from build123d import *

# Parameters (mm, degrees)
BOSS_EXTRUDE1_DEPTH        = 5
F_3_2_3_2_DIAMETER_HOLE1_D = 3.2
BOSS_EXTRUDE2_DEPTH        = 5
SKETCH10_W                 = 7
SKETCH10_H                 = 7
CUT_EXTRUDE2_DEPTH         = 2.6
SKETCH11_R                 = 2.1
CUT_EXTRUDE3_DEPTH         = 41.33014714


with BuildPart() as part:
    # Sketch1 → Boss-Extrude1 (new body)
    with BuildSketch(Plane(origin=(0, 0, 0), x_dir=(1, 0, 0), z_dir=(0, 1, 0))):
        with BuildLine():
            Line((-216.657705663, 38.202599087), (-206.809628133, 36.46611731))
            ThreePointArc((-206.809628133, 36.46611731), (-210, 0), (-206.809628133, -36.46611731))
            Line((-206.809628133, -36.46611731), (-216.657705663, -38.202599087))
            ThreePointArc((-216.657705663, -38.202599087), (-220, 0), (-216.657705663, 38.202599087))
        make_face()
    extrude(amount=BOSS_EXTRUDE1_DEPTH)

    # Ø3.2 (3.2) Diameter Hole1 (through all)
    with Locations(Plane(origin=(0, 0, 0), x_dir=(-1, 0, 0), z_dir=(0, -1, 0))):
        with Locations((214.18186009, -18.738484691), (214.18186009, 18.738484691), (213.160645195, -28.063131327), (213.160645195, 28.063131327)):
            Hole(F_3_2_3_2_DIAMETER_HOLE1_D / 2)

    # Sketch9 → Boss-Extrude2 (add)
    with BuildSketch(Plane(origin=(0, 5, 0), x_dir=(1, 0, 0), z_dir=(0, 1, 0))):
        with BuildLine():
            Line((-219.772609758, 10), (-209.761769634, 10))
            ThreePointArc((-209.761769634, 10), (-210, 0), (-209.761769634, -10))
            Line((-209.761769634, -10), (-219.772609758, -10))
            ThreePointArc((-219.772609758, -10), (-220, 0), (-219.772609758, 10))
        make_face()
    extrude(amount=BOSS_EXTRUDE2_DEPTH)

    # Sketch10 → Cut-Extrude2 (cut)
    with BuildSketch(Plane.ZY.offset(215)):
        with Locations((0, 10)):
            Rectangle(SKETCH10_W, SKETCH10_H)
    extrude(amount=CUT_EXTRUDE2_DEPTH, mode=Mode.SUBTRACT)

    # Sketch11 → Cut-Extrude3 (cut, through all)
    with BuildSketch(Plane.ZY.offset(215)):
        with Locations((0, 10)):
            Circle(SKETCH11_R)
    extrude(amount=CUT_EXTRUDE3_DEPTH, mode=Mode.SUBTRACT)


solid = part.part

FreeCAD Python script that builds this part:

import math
import FreeCAD as App
import Part
import Sketcher
from FreeCAD import Vector
Q = App.Units.Quantity


def add_polygon(sketch, points):
    """Adds a closed chain of lines whose ends are joined by coincident constraints."""
    first, n = sketch.GeometryCount, len(points)
    for a, b in zip(points, points[1:] + points[:1]):
        sketch.addGeometry(Part.LineSegment(App.Vector(*a, 0), App.Vector(*b, 0)), False)
    for i in range(n):
        sketch.addConstraint(Sketcher.Constraint("Coincident", first + i, 2, first + (i + 1) % n, 1))

doc = App.newDocument("Part")
body = doc.addObject("PartDesign::Body", "Body")

sketch1 = body.newObject("Sketcher::SketchObject", "Sketch")
sketch1.AttachmentSupport = (doc.getObject("XZ_Plane"), [""])
sketch1.MapMode = "FlatFace"
sketch1.addGeometry([
    Part.LineSegment(Vector(-206.809628, -36.466117, 0), Vector(-216.657706, -38.202599, 0)),
    Part.ArcOfCircle(Part.Circle(Vector(0, 0, 0), Vector(0, 0, 1), 220), math.radians(170), math.radians(190)),
    Part.LineSegment(Vector(-216.657706, 38.202599, 0), Vector(-206.809628, 36.466117, 0)),
    Part.ArcOfCircle(Part.Circle(Vector(0, 0, 0), Vector(0, 0, 1), 210), math.radians(170), math.radians(190)),
], False)
sketch1.addConstraint([
    Sketcher.Constraint("Coincident", 0, 2, 1, 2),
    Sketcher.Constraint("Coincident", 1, 1, 2, 1),
    Sketcher.Constraint("Coincident", 2, 2, 3, 1),
    Sketcher.Constraint("Coincident", 3, 2, 0, 1),
    Sketcher.Constraint("Coincident", 1, 3, -1, 1),
    Sketcher.Constraint("Coincident", 3, 3, -1, 1),
    Sketcher.Constraint("Vertical", 0, 2, 1, 1),
    Sketcher.Constraint("Vertical", 2, 2, 3, 2),
    Sketcher.Constraint("Radius", 1, Q("220 mm")),
    Sketcher.Constraint("Radius", 3, Q("210 mm")),
    Sketcher.Constraint("Angle", 0, Q("-170 deg")),
    Sketcher.Constraint("DistanceY", 0, 2, -1, 1, Q("38.202599 mm")),
])
pad1 = body.newObject("PartDesign::Pad", "Pad")
pad1.Profile = sketch1
pad1.Length = 5
pad1.Reversed = True

sketch2 = body.newObject("Sketcher::SketchObject", "Sketch001")
sketch2.AttachmentSupport = (doc.getObject("XZ_Plane"), [""])
sketch2.MapMode = "FlatFace"
sketch2.addGeometry([
    Part.Circle(Vector(-214.18186, 18.738485, 0), Vector(0, 0, 1), 1.6),
    Part.Circle(Vector(-214.18186, -18.738485, 0), Vector(0, 0, 1), 1.6),
    Part.Circle(Vector(-213.160645, 28.063131, 0), Vector(0, 0, 1), 1.6),
    Part.Circle(Vector(-213.160645, -28.063131, 0), Vector(0, 0, 1), 1.6),
], False)
sketch2.addConstraint([
    Sketcher.Constraint("Equal", 0, 1),
    Sketcher.Constraint("Equal", 1, 2),
    Sketcher.Constraint("Equal", 2, 3),
    Sketcher.Constraint("Symmetric", 0, 3, 1, 3, -1),
    Sketcher.Constraint("Symmetric", 2, 3, 3, 3, -1),
    Sketcher.Constraint("Diameter", 0, Q("3.2 mm")),
    Sketcher.Constraint("DistanceX", 0, 3, -1, 1, Q("214.18186 mm")),
    Sketcher.Constraint("DistanceY", -1, 1, 2, 3, Q("28.063131 mm")),
    Sketcher.Constraint("DistanceY", 1, 3, 0, 3, Q("37.476969 mm")),
    Sketcher.Constraint("DistanceX", 2, 3, -1, 1, Q("213.160645 mm")),
])
doc.recompute()
hole = body.newObject("PartDesign::Hole", "Hole")
hole.Profile = sketch2
hole.ThreadType = "None"
hole.Diameter = 3.2
hole.DepthType = "ThroughAll"

sketch3 = body.newObject("Sketcher::SketchObject", "Sketch002")
sketch3.AttachmentSupport = (doc.getObject("XZ_Plane"), [""])
sketch3.MapMode = "FlatFace"
sketch3.AttachmentOffset = App.Placement(Vector(0, 0, -5), App.Rotation())
sketch3.addGeometry([
    Part.LineSegment(Vector(-209.76177, -10, 0), Vector(-219.77261, -10, 0)),
    Part.ArcOfCircle(Part.Circle(Vector(0, 0, 0), Vector(0, 0, 1), 220), math.radians(177.394749), math.radians(182.605251)),
    Part.LineSegment(Vector(-219.77261, 10, 0), Vector(-209.76177, 10, 0)),
    Part.ArcOfCircle(Part.Circle(Vector(0, 0, 0), Vector(0, 0, 1), 210), math.radians(177.270597), math.radians(182.729403)),
], False)
sketch3.addConstraint([
    Sketcher.Constraint("Coincident", 0, 2, 1, 2),
    Sketcher.Constraint("Coincident", 1, 1, 2, 1),
    Sketcher.Constraint("Coincident", 2, 2, 3, 1),
    Sketcher.Constraint("Coincident", 3, 2, 0, 1),
    Sketcher.Constraint("Horizontal", 0),
    Sketcher.Constraint("Horizontal", 2),
    Sketcher.Constraint("Coincident", 1, 3, -1, 1),
    Sketcher.Constraint("Coincident", 3, 3, -1, 1),
    Sketcher.Constraint("Vertical", 0, 2, 1, 1),
    Sketcher.Constraint("Radius", 1, Q("220 mm")),
    Sketcher.Constraint("Radius", 3, Q("210 mm")),
    Sketcher.Constraint("DistanceY", 0, 2, -1, 1, Q("10 mm")),
])
pad2 = body.newObject("PartDesign::Pad", "Pad001")
pad2.Profile = sketch3
pad2.Length = 5
pad2.Reversed = True

sketch4 = body.newObject("Sketcher::SketchObject", "Sketch003")
sketch4.AttachmentSupport = (doc.getObject("YZ_Plane"), [""])
sketch4.MapMode = "FlatFace"
sketch4.AttachmentOffset = App.Placement(Vector(0, 0, -215), App.Rotation())
add_polygon(sketch4, [(13.5, -3.5), (6.5, -3.5), (6.5, 3.5), (13.5, 3.5)])
sketch4.addConstraint([
    Sketcher.Constraint("Horizontal", 0),
    Sketcher.Constraint("Vertical", 1),
    Sketcher.Constraint("Horizontal", 2),
    Sketcher.Constraint("Vertical", 3),
    Sketcher.Constraint("Equal", 2, 1),
    Sketcher.Constraint("DistanceX", 0, 2, 0, 1, Q("7 mm")),
    Sketcher.Constraint("DistanceX", -1, 1, 0, 2, Q("6.5 mm")),
    Sketcher.Constraint("DistanceY", 0, 2, -1, 1, Q("3.5 mm")),
])
pocket1 = body.newObject("PartDesign::Pocket", "Pocket")
pocket1.Profile = sketch4
pocket1.Length = 2.6

sketch5 = body.newObject("Sketcher::SketchObject", "Sketch004")
sketch5.AttachmentSupport = (doc.getObject("YZ_Plane"), [""])
sketch5.MapMode = "FlatFace"
sketch5.AttachmentOffset = App.Placement(Vector(0, 0, -215), App.Rotation())
sketch5.addGeometry(Part.Circle(Vector(10, 0, 0), Vector(0, 0, 1), 2.1), False)
sketch5.addConstraint([
    Sketcher.Constraint("PointOnObject", 0, 3, -1),
    Sketcher.Constraint("Diameter", 0, Q("4.2 mm")),
    Sketcher.Constraint("DistanceX", -1, 1, 0, 3, Q("10 mm")),
])
pocket2 = body.newObject("PartDesign::Pocket", "Pocket001")
pocket2.Profile = sketch5
pocket2.Type = "ThroughAll"

doc.recompute()
